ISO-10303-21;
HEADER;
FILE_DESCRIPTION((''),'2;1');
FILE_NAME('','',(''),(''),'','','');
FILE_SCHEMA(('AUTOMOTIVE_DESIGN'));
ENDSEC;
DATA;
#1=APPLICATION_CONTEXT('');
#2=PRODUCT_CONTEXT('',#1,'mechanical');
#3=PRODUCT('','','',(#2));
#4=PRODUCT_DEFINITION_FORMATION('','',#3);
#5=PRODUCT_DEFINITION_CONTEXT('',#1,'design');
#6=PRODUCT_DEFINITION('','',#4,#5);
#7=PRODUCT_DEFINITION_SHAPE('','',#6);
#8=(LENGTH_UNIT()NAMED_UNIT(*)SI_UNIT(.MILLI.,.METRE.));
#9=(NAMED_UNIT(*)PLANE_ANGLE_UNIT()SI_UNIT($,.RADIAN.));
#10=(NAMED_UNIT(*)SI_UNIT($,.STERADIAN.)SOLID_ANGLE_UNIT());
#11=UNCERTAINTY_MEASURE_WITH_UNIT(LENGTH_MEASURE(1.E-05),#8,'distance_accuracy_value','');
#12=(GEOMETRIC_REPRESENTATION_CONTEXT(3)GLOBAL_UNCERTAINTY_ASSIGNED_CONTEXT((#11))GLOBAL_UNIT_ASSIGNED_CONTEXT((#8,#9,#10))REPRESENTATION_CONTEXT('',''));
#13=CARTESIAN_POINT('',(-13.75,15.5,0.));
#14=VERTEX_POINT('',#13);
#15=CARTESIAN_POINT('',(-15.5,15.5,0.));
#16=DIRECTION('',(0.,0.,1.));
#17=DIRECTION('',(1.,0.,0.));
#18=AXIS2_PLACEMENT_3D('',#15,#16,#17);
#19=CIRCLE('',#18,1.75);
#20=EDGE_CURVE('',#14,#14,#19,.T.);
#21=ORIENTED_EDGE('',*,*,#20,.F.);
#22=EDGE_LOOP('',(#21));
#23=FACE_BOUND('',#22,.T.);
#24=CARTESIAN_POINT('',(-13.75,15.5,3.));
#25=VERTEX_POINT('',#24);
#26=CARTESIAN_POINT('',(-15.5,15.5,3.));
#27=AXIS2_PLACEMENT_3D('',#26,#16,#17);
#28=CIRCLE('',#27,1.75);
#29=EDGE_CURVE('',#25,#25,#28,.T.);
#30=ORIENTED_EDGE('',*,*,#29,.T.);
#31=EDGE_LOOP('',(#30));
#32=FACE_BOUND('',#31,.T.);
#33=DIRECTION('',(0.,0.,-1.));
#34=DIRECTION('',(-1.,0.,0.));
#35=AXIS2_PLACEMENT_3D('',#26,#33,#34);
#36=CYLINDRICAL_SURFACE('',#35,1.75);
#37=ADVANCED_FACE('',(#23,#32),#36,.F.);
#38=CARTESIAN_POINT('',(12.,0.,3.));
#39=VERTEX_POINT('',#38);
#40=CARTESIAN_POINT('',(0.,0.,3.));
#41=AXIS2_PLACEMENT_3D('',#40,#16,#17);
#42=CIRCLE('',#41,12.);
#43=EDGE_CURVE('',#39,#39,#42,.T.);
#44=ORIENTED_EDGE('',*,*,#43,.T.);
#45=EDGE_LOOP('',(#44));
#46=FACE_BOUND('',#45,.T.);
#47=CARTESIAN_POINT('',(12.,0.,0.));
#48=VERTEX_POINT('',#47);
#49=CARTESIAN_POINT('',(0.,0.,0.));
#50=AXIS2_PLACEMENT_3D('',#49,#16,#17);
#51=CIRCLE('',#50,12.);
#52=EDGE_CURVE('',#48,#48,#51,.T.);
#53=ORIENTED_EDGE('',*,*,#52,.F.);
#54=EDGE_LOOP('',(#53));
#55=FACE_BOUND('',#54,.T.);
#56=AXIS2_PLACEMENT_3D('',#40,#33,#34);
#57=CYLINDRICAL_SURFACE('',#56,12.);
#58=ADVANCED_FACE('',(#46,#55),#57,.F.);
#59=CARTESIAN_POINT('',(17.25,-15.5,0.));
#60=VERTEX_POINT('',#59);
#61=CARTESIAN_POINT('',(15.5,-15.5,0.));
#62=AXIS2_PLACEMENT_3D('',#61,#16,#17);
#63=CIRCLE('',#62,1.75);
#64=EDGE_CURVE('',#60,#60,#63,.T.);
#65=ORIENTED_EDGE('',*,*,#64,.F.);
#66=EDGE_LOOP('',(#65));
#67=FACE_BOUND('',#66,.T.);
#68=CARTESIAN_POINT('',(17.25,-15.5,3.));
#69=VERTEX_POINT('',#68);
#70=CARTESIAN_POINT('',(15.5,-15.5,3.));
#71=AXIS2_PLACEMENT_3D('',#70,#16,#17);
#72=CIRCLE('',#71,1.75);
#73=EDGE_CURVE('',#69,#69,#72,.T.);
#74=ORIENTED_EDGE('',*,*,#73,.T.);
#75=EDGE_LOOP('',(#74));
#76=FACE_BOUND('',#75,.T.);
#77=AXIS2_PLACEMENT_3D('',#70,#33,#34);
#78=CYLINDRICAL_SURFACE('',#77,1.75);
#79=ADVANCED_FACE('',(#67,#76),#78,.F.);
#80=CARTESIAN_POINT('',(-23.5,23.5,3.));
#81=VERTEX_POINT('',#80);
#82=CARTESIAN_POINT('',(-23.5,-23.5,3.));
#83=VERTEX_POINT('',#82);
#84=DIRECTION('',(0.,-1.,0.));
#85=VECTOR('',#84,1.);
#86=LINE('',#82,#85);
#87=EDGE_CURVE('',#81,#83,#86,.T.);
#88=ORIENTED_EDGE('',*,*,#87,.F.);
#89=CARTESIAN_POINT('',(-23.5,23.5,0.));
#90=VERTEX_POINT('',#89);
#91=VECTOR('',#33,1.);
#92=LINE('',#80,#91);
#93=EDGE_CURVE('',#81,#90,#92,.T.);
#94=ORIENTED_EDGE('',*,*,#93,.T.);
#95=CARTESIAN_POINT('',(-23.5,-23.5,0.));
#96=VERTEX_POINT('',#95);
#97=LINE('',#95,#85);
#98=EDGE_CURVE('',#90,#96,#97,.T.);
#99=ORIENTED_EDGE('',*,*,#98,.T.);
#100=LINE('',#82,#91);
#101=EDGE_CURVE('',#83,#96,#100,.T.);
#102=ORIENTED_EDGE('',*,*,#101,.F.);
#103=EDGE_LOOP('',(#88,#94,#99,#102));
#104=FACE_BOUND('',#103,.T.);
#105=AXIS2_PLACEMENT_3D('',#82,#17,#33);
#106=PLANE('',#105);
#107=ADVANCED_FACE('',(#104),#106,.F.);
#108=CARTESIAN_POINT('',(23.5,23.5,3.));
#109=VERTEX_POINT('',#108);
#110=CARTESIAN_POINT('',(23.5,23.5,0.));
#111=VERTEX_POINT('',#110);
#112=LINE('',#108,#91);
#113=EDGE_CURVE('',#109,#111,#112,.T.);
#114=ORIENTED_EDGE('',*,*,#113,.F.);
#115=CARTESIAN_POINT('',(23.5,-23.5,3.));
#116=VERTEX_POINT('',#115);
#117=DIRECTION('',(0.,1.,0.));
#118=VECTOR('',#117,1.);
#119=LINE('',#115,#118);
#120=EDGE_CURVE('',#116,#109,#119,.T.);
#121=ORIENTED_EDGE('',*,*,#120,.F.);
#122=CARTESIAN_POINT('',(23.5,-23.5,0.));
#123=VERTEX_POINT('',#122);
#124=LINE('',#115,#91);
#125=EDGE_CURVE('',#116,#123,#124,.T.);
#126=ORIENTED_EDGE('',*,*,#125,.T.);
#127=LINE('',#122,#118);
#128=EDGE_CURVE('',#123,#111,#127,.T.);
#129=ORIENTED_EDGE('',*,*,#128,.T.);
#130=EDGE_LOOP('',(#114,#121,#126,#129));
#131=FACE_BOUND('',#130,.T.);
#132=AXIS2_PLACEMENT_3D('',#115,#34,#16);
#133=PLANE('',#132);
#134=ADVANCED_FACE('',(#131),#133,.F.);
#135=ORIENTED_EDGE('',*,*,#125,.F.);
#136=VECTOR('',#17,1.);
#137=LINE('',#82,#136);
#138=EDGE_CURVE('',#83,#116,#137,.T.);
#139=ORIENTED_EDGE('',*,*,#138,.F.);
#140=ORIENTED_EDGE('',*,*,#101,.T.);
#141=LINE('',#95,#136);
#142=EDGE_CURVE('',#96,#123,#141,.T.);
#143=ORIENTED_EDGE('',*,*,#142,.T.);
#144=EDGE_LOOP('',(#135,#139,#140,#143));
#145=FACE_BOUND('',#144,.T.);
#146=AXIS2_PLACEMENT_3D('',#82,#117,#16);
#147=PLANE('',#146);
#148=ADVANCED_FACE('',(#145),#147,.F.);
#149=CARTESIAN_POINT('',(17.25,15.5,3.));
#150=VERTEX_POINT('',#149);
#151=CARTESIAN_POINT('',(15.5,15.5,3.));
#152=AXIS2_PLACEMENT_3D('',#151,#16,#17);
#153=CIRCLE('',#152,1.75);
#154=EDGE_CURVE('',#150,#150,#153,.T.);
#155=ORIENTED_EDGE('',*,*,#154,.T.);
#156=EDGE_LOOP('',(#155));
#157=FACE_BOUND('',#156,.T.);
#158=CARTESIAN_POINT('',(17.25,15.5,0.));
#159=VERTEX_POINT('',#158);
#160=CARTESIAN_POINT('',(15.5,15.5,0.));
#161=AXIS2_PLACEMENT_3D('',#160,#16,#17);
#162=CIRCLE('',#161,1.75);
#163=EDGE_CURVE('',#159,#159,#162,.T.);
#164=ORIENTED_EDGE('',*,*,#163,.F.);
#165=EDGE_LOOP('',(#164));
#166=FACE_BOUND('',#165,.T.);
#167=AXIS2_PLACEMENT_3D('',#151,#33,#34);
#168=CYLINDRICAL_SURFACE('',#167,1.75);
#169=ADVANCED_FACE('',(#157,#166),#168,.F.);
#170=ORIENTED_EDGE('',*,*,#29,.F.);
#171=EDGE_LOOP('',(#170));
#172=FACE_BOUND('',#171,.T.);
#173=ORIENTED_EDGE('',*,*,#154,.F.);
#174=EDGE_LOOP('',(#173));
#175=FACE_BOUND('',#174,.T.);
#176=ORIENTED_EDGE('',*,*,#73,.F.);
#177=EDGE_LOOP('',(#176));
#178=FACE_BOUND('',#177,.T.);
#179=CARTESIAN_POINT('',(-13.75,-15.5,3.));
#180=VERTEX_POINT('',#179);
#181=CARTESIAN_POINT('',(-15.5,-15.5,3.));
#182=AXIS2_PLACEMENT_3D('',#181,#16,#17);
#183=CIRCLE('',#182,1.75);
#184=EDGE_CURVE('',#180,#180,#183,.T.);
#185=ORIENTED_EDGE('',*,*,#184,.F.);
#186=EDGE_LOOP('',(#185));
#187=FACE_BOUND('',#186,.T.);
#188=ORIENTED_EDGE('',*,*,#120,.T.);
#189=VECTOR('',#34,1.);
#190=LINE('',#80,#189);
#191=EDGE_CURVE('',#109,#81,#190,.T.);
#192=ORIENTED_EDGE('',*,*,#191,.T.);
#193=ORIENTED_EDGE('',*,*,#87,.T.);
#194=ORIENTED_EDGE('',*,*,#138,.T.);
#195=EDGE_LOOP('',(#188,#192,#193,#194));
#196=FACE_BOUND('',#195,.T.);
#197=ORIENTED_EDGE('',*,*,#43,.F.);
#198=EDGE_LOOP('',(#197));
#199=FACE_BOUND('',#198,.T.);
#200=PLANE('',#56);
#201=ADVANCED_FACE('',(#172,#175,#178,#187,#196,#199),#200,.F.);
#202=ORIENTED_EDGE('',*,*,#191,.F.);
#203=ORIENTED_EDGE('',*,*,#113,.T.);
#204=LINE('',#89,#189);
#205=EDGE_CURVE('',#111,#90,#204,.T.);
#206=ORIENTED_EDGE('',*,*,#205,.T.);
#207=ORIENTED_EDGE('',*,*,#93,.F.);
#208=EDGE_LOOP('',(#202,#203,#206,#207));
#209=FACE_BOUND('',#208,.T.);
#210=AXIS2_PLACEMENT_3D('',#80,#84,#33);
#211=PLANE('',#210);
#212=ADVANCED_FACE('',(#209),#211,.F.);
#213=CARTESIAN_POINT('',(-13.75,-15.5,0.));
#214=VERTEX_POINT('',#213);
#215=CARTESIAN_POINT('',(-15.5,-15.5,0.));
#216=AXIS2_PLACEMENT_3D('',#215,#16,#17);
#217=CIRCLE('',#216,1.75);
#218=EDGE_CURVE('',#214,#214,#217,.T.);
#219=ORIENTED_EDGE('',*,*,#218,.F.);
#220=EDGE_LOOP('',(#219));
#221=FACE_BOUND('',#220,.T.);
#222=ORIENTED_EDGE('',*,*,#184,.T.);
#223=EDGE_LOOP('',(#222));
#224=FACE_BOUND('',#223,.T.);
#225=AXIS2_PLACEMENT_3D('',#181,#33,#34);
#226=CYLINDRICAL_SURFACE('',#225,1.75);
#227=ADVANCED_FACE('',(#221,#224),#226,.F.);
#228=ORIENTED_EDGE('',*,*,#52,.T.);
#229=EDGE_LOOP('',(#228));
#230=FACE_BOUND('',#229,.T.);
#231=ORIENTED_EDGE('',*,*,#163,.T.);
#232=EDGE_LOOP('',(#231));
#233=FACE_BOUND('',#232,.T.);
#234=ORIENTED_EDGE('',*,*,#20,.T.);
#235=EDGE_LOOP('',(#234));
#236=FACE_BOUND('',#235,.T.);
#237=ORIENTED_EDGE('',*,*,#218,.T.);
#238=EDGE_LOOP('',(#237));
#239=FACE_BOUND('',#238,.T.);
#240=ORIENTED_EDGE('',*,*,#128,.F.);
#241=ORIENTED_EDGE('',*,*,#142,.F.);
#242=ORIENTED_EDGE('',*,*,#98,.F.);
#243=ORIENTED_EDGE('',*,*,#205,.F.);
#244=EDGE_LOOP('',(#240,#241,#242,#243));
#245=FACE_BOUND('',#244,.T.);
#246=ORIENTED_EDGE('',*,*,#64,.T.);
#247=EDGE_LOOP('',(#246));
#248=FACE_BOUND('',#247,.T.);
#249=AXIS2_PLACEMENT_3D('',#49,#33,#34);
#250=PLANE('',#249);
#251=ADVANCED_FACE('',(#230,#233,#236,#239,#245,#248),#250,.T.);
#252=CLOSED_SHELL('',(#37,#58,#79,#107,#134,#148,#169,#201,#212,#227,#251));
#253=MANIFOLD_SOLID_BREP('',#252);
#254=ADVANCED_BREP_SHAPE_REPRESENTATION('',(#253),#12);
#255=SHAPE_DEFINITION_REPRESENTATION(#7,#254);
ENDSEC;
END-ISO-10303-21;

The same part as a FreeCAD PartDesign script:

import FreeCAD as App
import Part
import Sketcher
from FreeCAD import Vector
Q = App.Units.Quantity


def add_polygon(sketch, points):
    """Adds a closed chain of lines whose ends are joined by coincident constraints."""
    first, n = sketch.GeometryCount, len(points)
    for a, b in zip(points, points[1:] + points[:1]):
        sketch.addGeometry(Part.LineSegment(App.Vector(*a, 0), App.Vector(*b, 0)), False)
    for i in range(n):
        sketch.addConstraint(Sketcher.Constraint("Coincident", first + i, 2, first + (i + 1) % n, 1))

doc = App.newDocument("Part")
body = doc.addObject("PartDesign::Body", "Body")

sketch1 = body.newObject("Sketcher::SketchObject", "Sketch")
sketch1.AttachmentSupport = (doc.getObject("XY_Plane"), [""])
sketch1.MapMode = "FlatFace"
add_polygon(sketch1, [(-23.5, 23.5), (-23.5, -23.5), (23.5, -23.5), (23.5, 23.5)])
sketch1.addGeometry(Part.Circle(Vector(-15.5, -15.5, 0), Vector(0, 0, 1), 1.8), False)
sketch1.addGeometry(Part.Circle(Vector(15.5, -15.5, 0), Vector(0, 0, 1), 1.8), False)
sketch1.addGeometry(Part.Circle(Vector(-15.5, 15.5, 0), Vector(0, 0, 1), 1.8), False)
sketch1.addGeometry(Part.Circle(Vector(0, 0, 0), Vector(0, 0, 1), 12), False)
sketch1.addGeometry(Part.Circle(Vector(15.5, 15.5, 0), Vector(0, 0, 1), 1.8), False)
sketch1.addConstraint(Sketcher.Constraint("Vertical", 0))
sketch1.addConstraint(Sketcher.Constraint("Horizontal", 1))
sketch1.addConstraint(Sketcher.Constraint("Vertical", 2))
sketch1.addConstraint(Sketcher.Constraint("Horizontal", 3))
sketch1.addConstraint(Sketcher.Constraint("Coincident", 7, 3, -1, 1))
sketch1.addConstraint(Sketcher.Constraint("Equal", 4, 5))
sketch1.addConstraint(Sketcher.Constraint("Equal", 5, 6))
sketch1.addConstraint(Sketcher.Constraint("Equal", 6, 8))
sketch1.addConstraint(Sketcher.Constraint("Symmetric", 5, 3, 6, 3, -1, 1))
sketch1.addConstraint(Sketcher.Constraint("Symmetric", 4, 3, 8, 3, -1, 1))
sketch1.addConstraint(Sketcher.Constraint("Symmetric", 0, 2, 2, 2, -1, 1))
sketch1.addConstraint(Sketcher.Constraint("Symmetric", 4, 3, 5, 3, -2))
sketch1.addConstraint(Sketcher.Constraint("Equal", 3, 0))
sketch1.addConstraint(Sketcher.Constraint("Diameter", 7, Q("24 mm")))
sketch1.addConstraint(Sketcher.Constraint("Diameter", 4, Q("3.5 mm")))
sketch1.addConstraint(Sketcher.Constraint("DistanceX", 1, 1, 1, 2, Q("47 mm")))
sketch1.addConstraint(Sketcher.Constraint("DistanceX", 4, 3, 5, 3, Q("31 mm")))
sketch1.addConstraint(Sketcher.Constraint("DistanceY", 4, 3, 6, 3, Q("31 mm")))
pad1 = body.newObject("PartDesign::Pad", "Pad")
pad1.Profile = sketch1
pad1.Length = 3

doc.recompute()
